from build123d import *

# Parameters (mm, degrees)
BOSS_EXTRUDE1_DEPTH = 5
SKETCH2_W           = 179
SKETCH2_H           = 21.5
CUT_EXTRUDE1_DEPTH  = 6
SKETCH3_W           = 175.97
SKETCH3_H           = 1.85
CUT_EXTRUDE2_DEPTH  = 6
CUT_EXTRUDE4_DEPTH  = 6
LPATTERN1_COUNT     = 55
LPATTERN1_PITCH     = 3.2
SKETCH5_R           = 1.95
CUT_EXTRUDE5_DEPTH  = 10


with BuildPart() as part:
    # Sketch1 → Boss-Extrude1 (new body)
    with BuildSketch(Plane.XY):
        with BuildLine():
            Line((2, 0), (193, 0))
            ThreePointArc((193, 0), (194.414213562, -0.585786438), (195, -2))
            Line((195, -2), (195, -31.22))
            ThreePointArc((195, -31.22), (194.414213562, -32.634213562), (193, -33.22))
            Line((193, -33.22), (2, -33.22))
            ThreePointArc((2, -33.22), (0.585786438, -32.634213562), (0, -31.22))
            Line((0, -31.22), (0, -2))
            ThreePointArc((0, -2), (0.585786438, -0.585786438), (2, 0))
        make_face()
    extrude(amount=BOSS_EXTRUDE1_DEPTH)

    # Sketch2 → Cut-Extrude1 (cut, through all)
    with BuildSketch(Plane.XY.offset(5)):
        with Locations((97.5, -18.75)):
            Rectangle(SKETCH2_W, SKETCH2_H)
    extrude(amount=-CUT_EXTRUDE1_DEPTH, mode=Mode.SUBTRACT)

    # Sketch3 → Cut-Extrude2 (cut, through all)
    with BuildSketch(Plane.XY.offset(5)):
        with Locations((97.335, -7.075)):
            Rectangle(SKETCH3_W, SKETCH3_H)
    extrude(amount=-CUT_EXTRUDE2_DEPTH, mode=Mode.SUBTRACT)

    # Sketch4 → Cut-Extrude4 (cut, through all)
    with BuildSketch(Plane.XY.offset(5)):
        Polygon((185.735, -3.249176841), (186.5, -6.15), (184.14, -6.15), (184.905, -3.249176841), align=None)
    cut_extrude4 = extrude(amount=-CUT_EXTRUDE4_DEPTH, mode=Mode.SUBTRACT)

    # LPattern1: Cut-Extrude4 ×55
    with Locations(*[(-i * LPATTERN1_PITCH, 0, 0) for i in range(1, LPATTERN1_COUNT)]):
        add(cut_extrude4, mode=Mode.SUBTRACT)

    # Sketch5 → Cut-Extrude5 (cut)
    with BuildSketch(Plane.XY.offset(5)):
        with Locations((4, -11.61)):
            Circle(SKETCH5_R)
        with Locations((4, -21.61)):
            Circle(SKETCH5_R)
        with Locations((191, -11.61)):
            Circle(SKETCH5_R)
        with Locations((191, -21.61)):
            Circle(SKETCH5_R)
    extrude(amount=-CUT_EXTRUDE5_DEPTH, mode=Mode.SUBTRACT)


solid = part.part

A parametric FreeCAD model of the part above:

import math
import FreeCAD as App
import Part
import Sketcher

V = App.Vector

doc = App.newDocument("Part")
body = doc.addObject("PartDesign::Body", "Body")

# Sketch on XY plane
sketch1 = body.newObject("Sketcher::SketchObject", "Sketch")
sketch1.AttachmentSupport = (doc.getObject("XY_Plane"), [""])
sketch1.MapMode = "FlatFace"
sketch1.addGeometry(Part.LineSegment(V(193, 0, 0), V(2, 0, 0)), False)
sketch1.addGeometry(Part.ArcOfCircle(Part.Circle(V(2, -2, 0), V(0, 0, 1), 2), math.radians(90), math.radians(180)), False)
sketch1.addGeometry(Part.LineSegment(V(0, -2, 0), V(0, -31.22, 0)), False)
sketch1.addGeometry(Part.ArcOfCircle(Part.Circle(V(2, -31.22, 0), V(0, 0, 1), 2), math.radians(-180), math.radians(-90)), False)
sketch1.addGeometry(Part.LineSegment(V(2, -33.22, 0), V(193, -33.22, 0)), False)
sketch1.addGeometry(Part.ArcOfCircle(Part.Circle(V(193, -31.22, 0), V(0, 0, 1), 2), math.radians(-90), math.radians(0)), False)
sketch1.addGeometry(Part.LineSegment(V(195, -31.22, 0), V(195, -2, 0)), False)
sketch1.addGeometry(Part.ArcOfCircle(Part.Circle(V(193, -2, 0), V(0, 0, 1), 2), math.radians(0), math.radians(90)), False)
sketch1.addConstraint(Sketcher.Constraint("Tangent", 0, 2, 1, 1))
sketch1.addConstraint(Sketcher.Constraint("Tangent", 1, 2, 2, 1))
sketch1.addConstraint(Sketcher.Constraint("Tangent", 2, 2, 3, 1))
sketch1.addConstraint(Sketcher.Constraint("Tangent", 3, 2, 4, 1))
sketch1.addConstraint(Sketcher.Constraint("Tangent", 4, 2, 5, 1))
sketch1.addConstraint(Sketcher.Constraint("Tangent", 5, 2, 6, 1))
sketch1.addConstraint(Sketcher.Constraint("Tangent", 6, 2, 7, 1))
sketch1.addConstraint(Sketcher.Constraint("Tangent", 7, 2, 0, 1))
sketch1.addConstraint(Sketcher.Constraint("Horizontal", 0))
sketch1.addConstraint(Sketcher.Constraint("Vertical", 2))
sketch1.addConstraint(Sketcher.Constraint("Horizontal", 4))
sketch1.addConstraint(Sketcher.Constraint("Vertical", 6))
sketch1.addConstraint(Sketcher.Constraint("Equal", 1, 3))
sketch1.addConstraint(Sketcher.Constraint("Equal", 3, 5))
sketch1.addConstraint(Sketcher.Constraint("Equal", 5, 7))
sketch1.addConstraint(Sketcher.Constraint("PointOnObject", 0, 2, -1))
sketch1.addConstraint(Sketcher.Constraint("PointOnObject", 1, 2, -2))
sketch1.addConstraint(Sketcher.Constraint("Radius", 1, 2.0))
sketch1.addConstraint(Sketcher.Constraint("DistanceX", 0, 2, 0, 1, 191.0))
sketch1.addConstraint(Sketcher.Constraint("DistanceY", 2, 2, 2, 1, 29.22))
pad1 = body.newObject("PartDesign::Pad", "Pad")
pad1.Profile = sketch1
pad1.Length = 5

# Sketch on XY plane
sketch2 = body.newObject("Sketcher::SketchObject", "Sketch001")
sketch2.AttachmentSupport = (doc.getObject("XY_Plane"), [""])
sketch2.MapMode = "FlatFace"
sketch2.AttachmentOffset = App.Placement(V(0, 0, 5), App.Rotation())
sketch2.addGeometry(Part.LineSegment(V(8, -8, 0), V(8, -29.5, 0)), False)
sketch2.addGeometry(Part.LineSegment(V(8, -29.5, 0), V(187, -29.5, 0)), False)
sketch2.addGeometry(Part.LineSegment(V(187, -29.5, 0), V(187, -8, 0)), False)
sketch2.addGeometry(Part.LineSegment(V(187, -8, 0), V(8, -8, 0)), False)
sketch2.addConstraint(Sketcher.Constraint("Coincident", 0, 2, 1, 1))
sketch2.addConstraint(Sketcher.Constraint("Coincident", 1, 2, 2, 1))
sketch2.addConstraint(Sketcher.Constraint("Coincident", 2, 2, 3, 1))
sketch2.addConstraint(Sketcher.Constraint("Coincident", 3, 2, 0, 1))
sketch2.addConstraint(Sketcher.Constraint("Vertical", 0))
sketch2.addConstraint(Sketcher.Constraint("Horizontal", 1))
sketch2.addConstraint(Sketcher.Constraint("Vertical", 2))
sketch2.addConstraint(Sketcher.Constraint("Horizontal", 3))
sketch2.addConstraint(Sketcher.Constraint("DistanceX", 1, 1, 1, 2, 179.0))
sketch2.addConstraint(Sketcher.Constraint("DistanceY", 0, 2, 0, 1, 21.5))
sketch2.addConstraint(Sketcher.Constraint("DistanceX", -1, 1, 0, 2, 8.0))
sketch2.addConstraint(Sketcher.Constraint("DistanceY", 2, 2, -1, 1, 8.0))
pocket1 = body.newObject("PartDesign::Pocket", "Pocket")
pocket1.Profile = sketch2
pocket1.Type = "ThroughAll"

# Sketch on XY plane
sketch3 = body.newObject("Sketcher::SketchObject", "Sketch002")
sketch3.AttachmentSupport = (doc.getObject("XY_Plane"), [""])
sketch3.MapMode = "FlatFace"
sketch3.AttachmentOffset = App.Placement(V(0, 0, 5), App.Rotation())
sketch3.addGeometry(Part.LineSegment(V(9.35, -6.15, 0), V(9.35, -8, 0)), False)
sketch3.addGeometry(Part.LineSegment(V(9.35, -8, 0), V(185.32, -8, 0)), False)
sketch3.addGeometry(Part.LineSegment(V(185.32, -8, 0), V(185.32, -6.15, 0)), False)
sketch3.addGeometry(Part.LineSegment(V(185.32, -6.15, 0), V(9.35, -6.15, 0)), False)
sketch3.addConstraint(Sketcher.Constraint("Coincident", 0, 2, 1, 1))
sketch3.addConstraint(Sketcher.Constraint("Coincident", 1, 2, 2, 1))
sketch3.addConstraint(Sketcher.Constraint("Coincident", 2, 2, 3, 1))
sketch3.addConstraint(Sketcher.Constraint("Coincident", 3, 2, 0, 1))
sketch3.addConstraint(Sketcher.Constraint("Vertical", 0))
sketch3.addConstraint(Sketcher.Constraint("Horizontal", 1))
sketch3.addConstraint(Sketcher.Constraint("Vertical", 2))
sketch3.addConstraint(Sketcher.Constraint("Horizontal", 3))
sketch3.addConstraint(Sketcher.Constraint("DistanceY", 0, 2, -1, 1, 8.0))
sketch3.addConstraint(Sketcher.Constraint("DistanceX", 1, 1, 1, 2, 175.97))
sketch3.addConstraint(Sketcher.Constraint("DistanceY", 0, 2, 0, 1, 1.85))
sketch3.addConstraint(Sketcher.Constraint("DistanceX", -1, 1, 0, 2, 9.35))
pocket2 = body.newObject("PartDesign::Pocket", "Pocket001")
pocket2.Profile = sketch3
pocket2.Type = "ThroughAll"

# Sketch on XY plane
sketch4 = body.newObject("Sketcher::SketchObject", "Sketch003")
sketch4.AttachmentSupport = (doc.getObject("XY_Plane"), [""])
sketch4.MapMode = "FlatFace"
sketch4.AttachmentOffset = App.Placement(V(0, 0, 5), App.Rotation())
sketch4.addGeometry(Part.LineSegment(V(186.5, -6.15, 0), V(185.735, -3.249177, 0)), False)
sketch4.addGeometry(Part.LineSegment(V(185.735, -3.249177, 0), V(184.905, -3.249177, 0)), False)
sketch4.addGeometry(Part.LineSegment(V(184.905, -3.249177, 0), V(184.14, -6.15, 0)), False)
sketch4.addGeometry(Part.LineSegment(V(184.14, -6.15, 0), V(186.5, -6.15, 0)), False)
sketch4.addConstraint(Sketcher.Constraint("Coincident", 0, 2, 1, 1))
sketch4.addConstraint(Sketcher.Constraint("Coincident", 1, 2, 2, 1))
sketch4.addConstraint(Sketcher.Constraint("Coincident", 2, 2, 3, 1))
sketch4.addConstraint(Sketcher.Constraint("Coincident", 3, 2, 0, 1))
sketch4.addConstraint(Sketcher.Constraint("Horizontal", 1))
sketch4.addConstraint(Sketcher.Constraint("Horizontal", 3))
sketch4.addConstraint(Sketcher.Constraint("Equal", 0, 2))
sketch4.addConstraint(Sketcher.Constraint("Distance", 0, 3.0))
sketch4.addConstraint(Sketcher.Constraint("DistanceX", 1, 2, 1, 1, 0.83))
sketch4.addConstraint(Sketcher.Constraint("DistanceX", 3, 1, 3, 2, 2.36))
sketch4.addConstraint(Sketcher.Constraint("DistanceX", -1, 1, 3, 2, 186.5))
sketch4.addConstraint(Sketcher.Constraint("DistanceY", 2, 2, -1, 1, 6.15))
pocket3 = body.newObject("PartDesign::Pocket", "Pocket002")
pocket3.Profile = sketch4
pocket3.Type = "ThroughAll"
doc.recompute()

linearpattern = body.newObject("PartDesign::LinearPattern", "LinearPattern")
linearpattern.Originals = [pocket3]
linearpattern.Direction = (doc.getObject("X_Axis"), [""])
linearpattern.Mode = "offset"
linearpattern.Offset = 3.2
linearpattern.Occurrences = 55
linearpattern.Reversed = True
body.Tip = linearpattern

# Sketch on XY plane
sketch5 = body.newObject("Sketcher::SketchObject", "Sketch004")
sketch5.AttachmentSupport = (doc.getObject("XY_Plane"), [""])
sketch5.MapMode = "FlatFace"
sketch5.AttachmentOffset = App.Placement(V(0, 0, 5), App.Rotation())
sketch5.addGeometry(Part.Circle(V(4, -11.61, 0), V(0, 0, 1), 1.95), False)
sketch5.addGeometry(Part.Circle(V(4, -21.61, 0), V(0, 0, 1), 1.95), False)
sketch5.addGeometry(Part.Circle(V(191, -11.61, 0), V(0, 0, 1), 1.95), False)
sketch5.addGeometry(Part.Circle(V(191, -21.61, 0), V(0, 0, 1), 1.95), False)
sketch5.addConstraint(Sketcher.Constraint("Equal", 0, 1))
sketch5.addConstraint(Sketcher.Constraint("Equal", 1, 2))
sketch5.addConstraint(Sketcher.Constraint("Equal", 2, 3))
sketch5.addConstraint(Sketcher.Constraint("Horizontal", 0, 3, 2, 3))
sketch5.addConstraint(Sketcher.Constraint("Horizontal", 1, 3, 3, 3))
sketch5.addConstraint(Sketcher.Constraint("Vertical", 0, 3, 1, 3))
sketch5.addConstraint(Sketcher.Constraint("Vertical", 2, 3, 3, 3))
sketch5.addConstraint(Sketcher.Constraint("Diameter", 0, 3.9))
sketch5.addConstraint(Sketcher.Constraint("DistanceX", -1, 1, 0, 3, 4.0))
sketch5.addConstraint(Sketcher.Constraint("DistanceX", -1, 1, 2, 3, 191.0))
sketch5.addConstraint(Sketcher.Constraint("DistanceY", 1, 3, 0, 3, 10.0))
sketch5.addConstraint(Sketcher.Constraint("DistanceY", 0, 3, -1, 1, 11.61))
pocket4 = body.newObject("PartDesign::Pocket", "Pocket003")
pocket4.Profile = sketch5
pocket4.Length = 10

doc.recompute()
